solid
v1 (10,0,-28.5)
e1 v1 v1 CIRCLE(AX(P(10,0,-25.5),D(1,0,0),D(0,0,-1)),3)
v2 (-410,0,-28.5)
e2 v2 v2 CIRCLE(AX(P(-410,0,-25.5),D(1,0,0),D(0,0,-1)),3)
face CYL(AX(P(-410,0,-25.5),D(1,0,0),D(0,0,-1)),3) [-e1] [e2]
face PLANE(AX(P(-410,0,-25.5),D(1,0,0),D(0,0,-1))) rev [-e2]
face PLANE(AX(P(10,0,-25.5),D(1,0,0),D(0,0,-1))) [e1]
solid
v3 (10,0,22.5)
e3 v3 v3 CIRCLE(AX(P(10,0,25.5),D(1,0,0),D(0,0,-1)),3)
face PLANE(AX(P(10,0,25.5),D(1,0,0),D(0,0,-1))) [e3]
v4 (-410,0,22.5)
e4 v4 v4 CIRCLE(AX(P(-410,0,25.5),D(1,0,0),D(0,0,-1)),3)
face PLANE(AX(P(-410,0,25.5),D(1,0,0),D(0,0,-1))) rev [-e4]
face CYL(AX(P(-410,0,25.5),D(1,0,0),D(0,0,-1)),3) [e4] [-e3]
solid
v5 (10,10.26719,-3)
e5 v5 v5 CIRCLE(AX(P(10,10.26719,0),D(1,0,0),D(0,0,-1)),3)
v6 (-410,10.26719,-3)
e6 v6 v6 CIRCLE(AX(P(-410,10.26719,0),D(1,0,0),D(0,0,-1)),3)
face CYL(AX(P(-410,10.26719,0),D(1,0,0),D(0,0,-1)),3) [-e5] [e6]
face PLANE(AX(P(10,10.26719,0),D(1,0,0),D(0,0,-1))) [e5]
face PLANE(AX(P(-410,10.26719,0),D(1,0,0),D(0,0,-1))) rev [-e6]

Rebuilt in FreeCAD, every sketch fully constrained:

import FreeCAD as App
import Part
import Sketcher
Q = App.Units.Quantity

doc = App.newDocument("Part")
body = doc.addObject("PartDesign::Body", "Body")

sketch1 = body.newObject("Sketcher::SketchObject", "Sketch")
sketch1.AttachmentSupport = (doc.getObject("YZ_Plane"), [""])
sketch1.MapMode = "FlatFace"
sketch1.AttachmentOffset = App.Placement(App.Vector(0, 0, 10), App.Rotation())
sketch1.addGeometry(Part.Circle(App.Vector(0, -25.5, 0), App.Vector(0, 0, 1), 3), False)
sketch1.addConstraint([
    Sketcher.Constraint("PointOnObject", 0, 3, -2),
    Sketcher.Constraint("Diameter", 0, Q("6 mm")),
    Sketcher.Constraint("DistanceY", 0, 3, -1, 1, Q("25.5 mm")),
])
pad1 = body.newObject("PartDesign::Pad", "Pad")
pad1.Profile = sketch1
pad1.Length = 420
pad1.Reversed = True
body2 = doc.addObject("PartDesign::Body", "Body001")

sketch2 = body2.newObject("Sketcher::SketchObject", "Sketch001")
sketch2.AttachmentSupport = (doc.getObject("YZ_Plane001"), [""])
sketch2.MapMode = "FlatFace"
sketch2.AttachmentOffset = App.Placement(App.Vector(0, 0, 10), App.Rotation())
sketch2.addGeometry(Part.Circle(App.Vector(10.26719, 0, 0), App.Vector(0, 0, 1), 3), False)
sketch2.addConstraint([
    Sketcher.Constraint("PointOnObject", 0, 3, -1),
    Sketcher.Constraint("Diameter", 0, Q("6 mm")),
    Sketcher.Constraint("DistanceX", -1, 1, 0, 3, Q("10.26719 mm")),
])
pad2 = body2.newObject("PartDesign::Pad", "Pad001")
pad2.Profile = sketch2
pad2.Length = 420
pad2.Reversed = True
body3 = doc.addObject("PartDesign::Body", "Body002")

sketch3 = body3.newObject("Sketcher::SketchObject", "Sketch002")
sketch3.AttachmentSupport = (doc.getObject("YZ_Plane002"), [""])
sketch3.MapMode = "FlatFace"
sketch3.AttachmentOffset = App.Placement(App.Vector(0, 0, 10), App.Rotation())
sketch3.addGeometry(Part.Circle(App.Vector(0, 25.5, 0), App.Vector(0, 0, 1), 3), False)
sketch3.addConstraint([
    Sketcher.Constraint("PointOnObject", 0, 3, -2),
    Sketcher.Constraint("Diameter", 0, Q("6 mm")),
    Sketcher.Constraint("DistanceY", -1, 1, 0, 3, Q("25.5 mm")),
])
pad3 = body3.newObject("PartDesign::Pad", "Pad002")
pad3.Profile = sketch3
pad3.Length = 420
pad3.Reversed = True

doc.recompute()
